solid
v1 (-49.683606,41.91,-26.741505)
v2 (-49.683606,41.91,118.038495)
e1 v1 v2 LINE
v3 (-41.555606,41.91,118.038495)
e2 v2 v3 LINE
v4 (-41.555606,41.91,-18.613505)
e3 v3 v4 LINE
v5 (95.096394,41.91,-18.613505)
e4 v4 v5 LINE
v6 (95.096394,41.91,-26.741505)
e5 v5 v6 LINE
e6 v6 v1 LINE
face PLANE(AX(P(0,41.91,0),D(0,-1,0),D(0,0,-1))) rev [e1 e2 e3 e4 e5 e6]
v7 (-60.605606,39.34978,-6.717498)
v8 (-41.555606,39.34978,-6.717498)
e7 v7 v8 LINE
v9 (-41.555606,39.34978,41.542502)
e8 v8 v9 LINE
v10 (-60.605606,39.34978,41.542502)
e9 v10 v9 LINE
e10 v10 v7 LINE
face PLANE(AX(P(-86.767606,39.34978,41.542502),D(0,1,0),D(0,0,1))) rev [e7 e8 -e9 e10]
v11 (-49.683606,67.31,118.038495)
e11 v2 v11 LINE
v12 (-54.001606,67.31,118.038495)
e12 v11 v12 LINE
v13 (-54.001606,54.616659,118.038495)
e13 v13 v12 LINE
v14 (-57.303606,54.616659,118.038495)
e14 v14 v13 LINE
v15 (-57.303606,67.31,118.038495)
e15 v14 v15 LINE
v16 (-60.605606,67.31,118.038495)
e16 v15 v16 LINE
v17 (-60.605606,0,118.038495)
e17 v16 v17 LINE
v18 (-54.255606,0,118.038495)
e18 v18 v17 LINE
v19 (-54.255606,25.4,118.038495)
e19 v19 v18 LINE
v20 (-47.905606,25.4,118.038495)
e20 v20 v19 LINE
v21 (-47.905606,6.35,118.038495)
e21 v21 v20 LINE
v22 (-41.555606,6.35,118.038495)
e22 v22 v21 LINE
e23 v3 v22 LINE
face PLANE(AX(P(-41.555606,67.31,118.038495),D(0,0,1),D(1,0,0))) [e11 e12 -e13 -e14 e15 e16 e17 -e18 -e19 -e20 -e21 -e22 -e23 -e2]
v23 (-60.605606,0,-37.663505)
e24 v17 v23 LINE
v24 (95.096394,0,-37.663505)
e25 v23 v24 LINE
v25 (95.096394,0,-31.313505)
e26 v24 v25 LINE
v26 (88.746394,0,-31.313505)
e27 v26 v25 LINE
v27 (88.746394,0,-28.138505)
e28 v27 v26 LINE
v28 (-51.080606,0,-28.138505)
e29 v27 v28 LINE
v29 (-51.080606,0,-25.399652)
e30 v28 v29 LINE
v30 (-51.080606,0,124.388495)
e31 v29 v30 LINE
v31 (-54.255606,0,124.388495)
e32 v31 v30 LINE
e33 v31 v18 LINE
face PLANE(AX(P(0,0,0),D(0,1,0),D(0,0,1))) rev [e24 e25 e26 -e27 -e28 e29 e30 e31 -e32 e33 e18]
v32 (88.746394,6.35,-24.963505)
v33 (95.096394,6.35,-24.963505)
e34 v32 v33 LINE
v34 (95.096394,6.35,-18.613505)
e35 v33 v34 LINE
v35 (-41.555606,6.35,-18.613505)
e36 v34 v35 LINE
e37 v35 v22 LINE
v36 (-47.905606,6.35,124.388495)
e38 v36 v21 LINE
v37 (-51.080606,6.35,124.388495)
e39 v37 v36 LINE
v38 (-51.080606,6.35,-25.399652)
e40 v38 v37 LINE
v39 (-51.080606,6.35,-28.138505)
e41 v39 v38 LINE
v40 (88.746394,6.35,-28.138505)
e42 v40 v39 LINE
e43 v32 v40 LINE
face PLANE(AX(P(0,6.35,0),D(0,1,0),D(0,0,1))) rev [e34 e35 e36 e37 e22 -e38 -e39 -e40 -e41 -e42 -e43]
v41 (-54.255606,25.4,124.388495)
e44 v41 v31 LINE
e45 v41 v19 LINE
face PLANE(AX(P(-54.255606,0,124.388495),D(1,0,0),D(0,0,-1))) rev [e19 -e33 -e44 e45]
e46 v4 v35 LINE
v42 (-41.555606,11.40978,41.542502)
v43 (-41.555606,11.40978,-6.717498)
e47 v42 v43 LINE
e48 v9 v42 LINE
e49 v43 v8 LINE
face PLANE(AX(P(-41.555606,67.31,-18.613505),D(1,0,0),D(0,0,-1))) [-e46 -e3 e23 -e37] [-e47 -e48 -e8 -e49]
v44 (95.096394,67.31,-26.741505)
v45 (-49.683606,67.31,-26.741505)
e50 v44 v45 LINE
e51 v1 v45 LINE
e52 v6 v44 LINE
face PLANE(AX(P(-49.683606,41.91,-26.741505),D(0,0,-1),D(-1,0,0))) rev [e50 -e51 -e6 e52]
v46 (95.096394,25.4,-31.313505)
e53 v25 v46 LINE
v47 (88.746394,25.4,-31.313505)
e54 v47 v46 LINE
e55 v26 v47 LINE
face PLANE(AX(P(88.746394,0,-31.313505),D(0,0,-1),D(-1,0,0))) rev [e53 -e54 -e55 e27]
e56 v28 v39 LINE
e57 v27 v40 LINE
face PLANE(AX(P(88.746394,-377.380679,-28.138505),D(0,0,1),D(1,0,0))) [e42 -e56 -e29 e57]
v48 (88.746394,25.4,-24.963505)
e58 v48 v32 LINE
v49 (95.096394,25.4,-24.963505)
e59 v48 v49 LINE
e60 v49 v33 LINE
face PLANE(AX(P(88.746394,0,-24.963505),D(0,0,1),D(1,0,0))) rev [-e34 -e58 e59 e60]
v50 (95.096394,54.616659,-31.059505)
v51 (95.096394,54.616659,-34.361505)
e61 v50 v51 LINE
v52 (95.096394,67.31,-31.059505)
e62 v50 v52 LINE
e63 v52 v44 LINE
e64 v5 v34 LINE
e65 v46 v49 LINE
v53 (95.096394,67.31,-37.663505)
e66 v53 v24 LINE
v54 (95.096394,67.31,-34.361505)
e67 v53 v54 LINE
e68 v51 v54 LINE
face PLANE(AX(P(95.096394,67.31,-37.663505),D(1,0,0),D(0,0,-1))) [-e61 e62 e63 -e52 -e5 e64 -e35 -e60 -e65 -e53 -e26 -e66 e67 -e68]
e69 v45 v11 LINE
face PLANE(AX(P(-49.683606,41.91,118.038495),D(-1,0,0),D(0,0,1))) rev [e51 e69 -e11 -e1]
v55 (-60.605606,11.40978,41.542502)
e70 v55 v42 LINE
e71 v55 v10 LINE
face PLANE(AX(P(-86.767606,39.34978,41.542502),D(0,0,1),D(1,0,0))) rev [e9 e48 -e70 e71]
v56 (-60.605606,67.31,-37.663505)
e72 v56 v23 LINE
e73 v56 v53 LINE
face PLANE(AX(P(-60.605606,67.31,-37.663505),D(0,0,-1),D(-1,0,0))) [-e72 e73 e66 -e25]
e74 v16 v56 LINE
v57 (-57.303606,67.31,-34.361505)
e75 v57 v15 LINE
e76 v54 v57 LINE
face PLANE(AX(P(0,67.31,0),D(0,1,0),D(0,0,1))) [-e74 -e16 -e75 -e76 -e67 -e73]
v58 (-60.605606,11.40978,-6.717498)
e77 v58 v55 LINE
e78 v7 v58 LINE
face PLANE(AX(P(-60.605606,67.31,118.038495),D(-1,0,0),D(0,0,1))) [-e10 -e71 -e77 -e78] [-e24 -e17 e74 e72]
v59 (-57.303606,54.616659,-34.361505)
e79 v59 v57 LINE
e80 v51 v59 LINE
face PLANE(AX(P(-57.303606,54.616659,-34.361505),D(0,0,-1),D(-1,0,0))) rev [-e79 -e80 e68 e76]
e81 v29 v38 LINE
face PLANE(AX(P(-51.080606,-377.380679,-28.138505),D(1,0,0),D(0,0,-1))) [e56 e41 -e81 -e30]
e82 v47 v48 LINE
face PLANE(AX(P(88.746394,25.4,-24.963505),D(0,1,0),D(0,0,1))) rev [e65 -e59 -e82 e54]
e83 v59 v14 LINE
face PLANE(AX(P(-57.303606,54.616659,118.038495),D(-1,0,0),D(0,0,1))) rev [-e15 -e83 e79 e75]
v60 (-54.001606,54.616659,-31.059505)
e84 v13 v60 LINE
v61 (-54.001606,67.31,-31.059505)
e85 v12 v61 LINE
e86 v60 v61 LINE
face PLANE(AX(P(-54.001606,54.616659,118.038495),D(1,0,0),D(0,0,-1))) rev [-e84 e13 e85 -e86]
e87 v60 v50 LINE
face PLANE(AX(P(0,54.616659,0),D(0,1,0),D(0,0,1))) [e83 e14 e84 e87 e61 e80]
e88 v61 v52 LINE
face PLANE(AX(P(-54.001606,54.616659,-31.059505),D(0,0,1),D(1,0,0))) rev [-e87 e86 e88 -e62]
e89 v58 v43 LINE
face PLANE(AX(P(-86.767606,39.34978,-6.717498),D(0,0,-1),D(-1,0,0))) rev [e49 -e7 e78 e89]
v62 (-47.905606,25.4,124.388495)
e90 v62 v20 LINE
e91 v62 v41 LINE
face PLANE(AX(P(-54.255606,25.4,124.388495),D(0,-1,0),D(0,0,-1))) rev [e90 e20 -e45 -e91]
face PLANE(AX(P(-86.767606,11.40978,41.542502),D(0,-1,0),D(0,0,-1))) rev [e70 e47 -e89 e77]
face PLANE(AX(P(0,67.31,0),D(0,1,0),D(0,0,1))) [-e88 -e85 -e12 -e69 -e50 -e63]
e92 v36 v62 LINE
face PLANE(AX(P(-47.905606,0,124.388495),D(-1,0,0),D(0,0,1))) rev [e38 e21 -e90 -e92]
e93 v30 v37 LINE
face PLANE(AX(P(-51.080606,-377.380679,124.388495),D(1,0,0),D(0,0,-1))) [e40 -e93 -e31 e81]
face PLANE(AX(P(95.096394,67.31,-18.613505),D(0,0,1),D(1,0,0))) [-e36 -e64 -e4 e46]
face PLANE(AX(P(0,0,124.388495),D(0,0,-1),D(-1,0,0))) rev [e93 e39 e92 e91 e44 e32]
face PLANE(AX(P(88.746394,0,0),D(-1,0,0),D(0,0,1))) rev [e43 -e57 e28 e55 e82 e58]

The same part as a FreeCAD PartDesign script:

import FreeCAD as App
import Part
import Sketcher

V = App.Vector
Q = App.Units.Quantity


def add_polygon(sketch, points):
    """Adds a closed chain of lines whose ends are joined by coincident constraints."""
    first, n = sketch.GeometryCount, len(points)
    for a, b in zip(points, points[1:] + points[:1]):
        sketch.addGeometry(Part.LineSegment(App.Vector(*a, 0), App.Vector(*b, 0)), False)
    for i in range(n):
        sketch.addConstraint(Sketcher.Constraint("Coincident", first + i, 2, first + (i + 1) % n, 1))

doc = App.newDocument("Part")
params = doc.addObject("Spreadsheet::Sheet", "Params")
for row, (alias, value) in enumerate([
    ("sketch1_width", "6.13 in"),
    ("sketch1_width2", "0.75 in"),
    ("pad1_length", "2.65 in"),
    ("sketch2_width", "6 in"),
    ("sketch2_width2", "0.13 in"),
    ("pocket1_length", "12.693341 mm"),
    ("sketch3_width", "5.7 in"),
    ("sketch3_width2", "0.32 in"),
    ("pocket2_length", "1 in"),
    ("sketch4_height", "1 in"),
    ("sketch4_width", "0.25 in"),
    ("pad2_length", "0.25 in"),
    ("sketch5_width", "1 in"),
    ("sketch5_height", "0.25 in"),
    ("pocket3_length", "0.25 in"),
    ("pocket4_length", "171.430215 mm"),
    ("pocket4_length2", "0.25 in"),
    ("sketch7_width", "1.1 in"),
    ("sketch7_height", "1.9 in"),
    ("pocket5_length", "1.78 in"),
], start=1):
    params.set(f"A{row}", alias)
    params.set(f"B{row}", "=" + value)
    params.setAlias(f"B{row}", alias)

body = doc.addObject("PartDesign::Body", "Body")

# Sketch on XZ plane
sketch1 = body.newObject("Sketcher::SketchObject", "Sketch")
sketch1.AttachmentSupport = (doc.getObject("XZ_Plane"), [""])
sketch1.MapMode = "FlatFace"
add_polygon(sketch1, [(95, -38), (-61, -38), (-61, 118), (-42, 118), (-42, -19), (95, -19)])  # lines 0-5
sketch1.addConstraint(Sketcher.Constraint("Horizontal", 0))
sketch1.addConstraint(Sketcher.Constraint("Vertical", 1))
sketch1.addConstraint(Sketcher.Constraint("Horizontal", 2))
sketch1.addConstraint(Sketcher.Constraint("Vertical", 3))
sketch1.addConstraint(Sketcher.Constraint("Horizontal", 4))
sketch1.addConstraint(Sketcher.Constraint("Vertical", 5))
sketch1.addConstraint(Sketcher.Constraint("Equal", 0, 1))
sketch1.addConstraint(Sketcher.Constraint("Equal", 4, 3))
sketch1.addConstraint(Sketcher.Constraint("DistanceX", 0, 2, 0, 1, Q("6.13 in")))
sketch1.addConstraint(Sketcher.Constraint("DistanceX", 2, 1, 2, 2, Q("0.75 in")))
sketch1.addConstraint(Sketcher.Constraint("DistanceX", 0, 2, -1, 1, Q("60.605606 mm")))
sketch1.addConstraint(Sketcher.Constraint("DistanceY", 0, 2, -1, 1, Q("37.663505 mm")))
sketch1.setExpression("Constraints[14]", "Params.sketch1_width")
sketch1.setExpression("Constraints[15]", "Params.sketch1_width2")
pad1 = body.newObject("PartDesign::Pad", "Pad")
pad1.Profile = sketch1
pad1.setExpression("Length", "Params.pad1_length")
pad1.Reversed = True

# Sketch on XZ plane
sketch2 = body.newObject("Sketcher::SketchObject", "Sketch001")
sketch2.AttachmentSupport = (doc.getObject("XZ_Plane"), [""])
sketch2.MapMode = "FlatFace"
sketch2.AttachmentOffset = App.Placement(V(0, 0, -2.65 * 25.4), App.Rotation())
add_polygon(sketch2, [(-57.3, -34.4), (-57.3, 118), (-54, 118), (-54, -31.1), (95.1, -31.1), (95.1, -34.4)])  # lines 0-5
sketch2.addConstraint(Sketcher.Constraint("Vertical", 0))
sketch2.addConstraint(Sketcher.Constraint("Horizontal", 1))
sketch2.addConstraint(Sketcher.Constraint("Vertical", 2))
sketch2.addConstraint(Sketcher.Constraint("Horizontal", 3))
sketch2.addConstraint(Sketcher.Constraint("Vertical", 4))
sketch2.addConstraint(Sketcher.Constraint("Horizontal", 5))
sketch2.addConstraint(Sketcher.Constraint("Equal", 5, 0))
sketch2.addConstraint(Sketcher.Constraint("Equal", 3, 2))
sketch2.addConstraint(Sketcher.Constraint("DistanceX", 5, 2, 5, 1, Q("6 in")))
sketch2.addConstraint(Sketcher.Constraint("DistanceX", 1, 1, 1, 2, Q("0.13 in")))
sketch2.addConstraint(Sketcher.Constraint("DistanceX", 0, 2, -1, 1, Q("57.303606 mm")))
sketch2.addConstraint(Sketcher.Constraint("DistanceY", -1, 1, 0, 2, Q("118.038495 mm")))
sketch2.setExpression("Constraints[14]", "Params.sketch2_width")
sketch2.setExpression("Constraints[15]", "Params.sketch2_width2")
pocket1 = body.newObject("PartDesign::Pocket", "Pocket")
pocket1.Profile = sketch2
pocket1.setExpression("Length", "Params.pocket1_length")
pocket1.Reversed = True

# Sketch on XZ plane
sketch3 = body.newObject("Sketcher::SketchObject", "Sketch002")
sketch3.AttachmentSupport = (doc.getObject("XZ_Plane"), [""])
sketch3.MapMode = "FlatFace"
sketch3.AttachmentOffset = App.Placement(V(0, 0, -2.65 * 25.4), App.Rotation())
add_polygon(sketch3, [(-50, -27), (-50, 118), (-42, 118), (-42, -19), (95, -19), (95, -27)])  # lines 0-5
sketch3.addConstraint(Sketcher.Constraint("Vertical", 0))
sketch3.addConstraint(Sketcher.Constraint("Horizontal", 1))
sketch3.addConstraint(Sketcher.Constraint("Vertical", 2))
sketch3.addConstraint(Sketcher.Constraint("Horizontal", 3))
sketch3.addConstraint(Sketcher.Constraint("Vertical", 4))
sketch3.addConstraint(Sketcher.Constraint("Horizontal", 5))
sketch3.addConstraint(Sketcher.Constraint("Equal", 5, 0))
sketch3.addConstraint(Sketcher.Constraint("Equal", 3, 2))
sketch3.addConstraint(Sketcher.Constraint("DistanceX", 5, 2, 5, 1, Q("5.7 in")))
sketch3.addConstraint(Sketcher.Constraint("DistanceX", 1, 1, 1, 2, Q("0.32 in")))
sketch3.addConstraint(Sketcher.Constraint("DistanceX", 0, 2, -1, 1, Q("49.683606 mm")))
sketch3.addConstraint(Sketcher.Constraint("DistanceY", -1, 1, 0, 2, Q("118.038495 mm")))
sketch3.setExpression("Constraints[14]", "Params.sketch3_width")
sketch3.setExpression("Constraints[15]", "Params.sketch3_width2")
pocket2 = body.newObject("PartDesign::Pocket", "Pocket001")
pocket2.Profile = sketch3
pocket2.setExpression("Length", "Params.pocket2_length")
pocket2.Reversed = True

# Sketch on XY plane
sketch4 = body.newObject("Sketcher::SketchObject", "Sketch003")
sketch4.AttachmentSupport = (doc.getObject("XY_Plane"), [""])
sketch4.MapMode = "FlatFace"
sketch4.AttachmentOffset = App.Placement(V(0, 0, 118.038495), App.Rotation())
add_polygon(sketch4, [(-54, 25), (-54, 0), (-48, 0), (-48, 25)])  # lines 0-3
sketch4.addConstraint(Sketcher.Constraint("Vertical", 0))
sketch4.addConstraint(Sketcher.Constraint("Horizontal", 1))
sketch4.addConstraint(Sketcher.Constraint("Vertical", 2))
sketch4.addConstraint(Sketcher.Constraint("Horizontal", 3))
sketch4.addConstraint(Sketcher.Constraint("PointOnObject", 0, 2, -1))
sketch4.addConstraint(Sketcher.Constraint("DistanceY", 0, 2, 0, 1, Q("1 in")))
sketch4.addConstraint(Sketcher.Constraint("DistanceX", 1, 1, 1, 2, Q("0.25 in")))
sketch4.addConstraint(Sketcher.Constraint("DistanceX", 0, 2, -1, 1, Q("54.255606 mm")))
sketch4.setExpression("Constraints[9]", "Params.sketch4_height")
sketch4.setExpression("Constraints[10]", "Params.sketch4_width")
pad2 = body.newObject("PartDesign::Pad", "Pad001")
pad2.Profile = sketch4
pad2.setExpression("Length", "Params.pad2_length")

# Sketch on YZ plane
sketch5 = body.newObject("Sketcher::SketchObject", "Sketch004")
sketch5.AttachmentSupport = (doc.getObject("YZ_Plane"), [""])
sketch5.MapMode = "FlatFace"
sketch5.AttachmentOffset = App.Placement(V(0, 0, 95.096394), App.Rotation())
add_polygon(sketch5, [(25, -25), (0, -25), (0, -31), (25, -31)])  # lines 0-3
sketch5.addConstraint(Sketcher.Constraint("Horizontal", 0))
sketch5.addConstraint(Sketcher.Constraint("Vertical", 1))
sketch5.addConstraint(Sketcher.Constraint("Horizontal", 2))
sketch5.addConstraint(Sketcher.Constraint("Vertical", 3))
sketch5.addConstraint(Sketcher.Constraint("PointOnObject", 0, 2, -2))
sketch5.addConstraint(Sketcher.Constraint("DistanceX", 0, 2, 0, 1, Q("1 in")))
sketch5.addConstraint(Sketcher.Constraint("DistanceY", 1, 2, 1, 1, Q("0.25 in")))
sketch5.addConstraint(Sketcher.Constraint("DistanceY", 0, 2, -1, 1, Q("24.963505 mm")))
sketch5.setExpression("Constraints[9]", "Params.sketch5_width")
sketch5.setExpression("Constraints[10]", "Params.sketch5_height")
pocket3 = body.newObject("PartDesign::Pocket", "Pocket002")
pocket3.Profile = sketch5
pocket3.setExpression("Length", "Params.pocket3_length")

# Sketch on XZ plane
sketch6 = body.newObject("Sketcher::SketchObject", "Sketch005")
sketch6.AttachmentSupport = (doc.getObject("XZ_Plane"), [""])
sketch6.MapMode = "FlatFace"
add_polygon(sketch6, [(-51, 571), (-51, -28), (535, -28), (1173, 596), (587, 1195)])  # lines 0-4
sketch6.addConstraint(Sketcher.Constraint("Vertical", 0))
sketch6.addConstraint(Sketcher.Constraint("Horizontal", 1))
sketch6.addConstraint(Sketcher.Constraint("Perpendicular", 2, 3))
sketch6.addConstraint(Sketcher.Constraint("Perpendicular", 3, 4))
sketch6.addConstraint(Sketcher.Constraint("Equal", 2, 4))
sketch6.addConstraint(Sketcher.Constraint("DistanceX", 1, 1, 1, 2, Q("586.306397 mm")))
sketch6.addConstraint(Sketcher.Constraint("DistanceY", 0, 2, 0, 1, Q("599.006397 mm")))
sketch6.addConstraint(Sketcher.Constraint("DistanceX", -1, 1, 1, 2, Q("535.225792 mm")))
sketch6.addConstraint(Sketcher.Constraint("DistanceY", -1, 1, 2, 2, Q("596.47756 mm")))
sketch6.addConstraint(Sketcher.Constraint("DistanceX", 1, 2, 2, 2, Q("638.145892 mm")))
pocket4 = body.newObject("PartDesign::Pocket", "Pocket003")
pocket4.Profile = sketch6
pocket4.Type = "TwoLengths"
pocket4.setExpression("Length", "Params.pocket4_length")
pocket4.setExpression("Length2", "Params.pocket4_length2")
pocket4.Reversed = True

# Sketch on YZ plane
sketch7 = body.newObject("Sketcher::SketchObject", "Sketch006")
sketch7.AttachmentSupport = (doc.getObject("YZ_Plane"), [""])
sketch7.MapMode = "FlatFace"
sketch7.AttachmentOffset = App.Placement(V(0, 0, -41.555606), App.Rotation())
add_polygon(sketch7, [(39, 42), (11, 42), (11, -7), (39, -7)])  # lines 0-3
sketch7.addConstraint(Sketcher.Constraint("Horizontal", 0))
sketch7.addConstraint(Sketcher.Constraint("Vertical", 1))
sketch7.addConstraint(Sketcher.Constraint("Horizontal", 2))
sketch7.addConstraint(Sketcher.Constraint("Vertical", 3))
sketch7.addConstraint(Sketcher.Constraint("DistanceX", 0, 2, 0, 1, Q("1.1 in")))
sketch7.addConstraint(Sketcher.Constraint("DistanceY", 1, 2, 1, 1, Q("1.9 in")))
sketch7.addConstraint(Sketcher.Constraint("DistanceX", -1, 1, 0, 2, Q("11.40978 mm")))
sketch7.addConstraint(Sketcher.Constraint("DistanceY", -1, 1, 0, 2, Q("41.542502 mm")))
sketch7.setExpression("Constraints[8]", "Params.sketch7_width")
sketch7.setExpression("Constraints[9]", "Params.sketch7_height")
pocket5 = body.newObject("PartDesign::Pocket", "Pocket004")
pocket5.Profile = sketch7
pocket5.setExpression("Length", "Params.pocket5_length")

doc.recompute()
